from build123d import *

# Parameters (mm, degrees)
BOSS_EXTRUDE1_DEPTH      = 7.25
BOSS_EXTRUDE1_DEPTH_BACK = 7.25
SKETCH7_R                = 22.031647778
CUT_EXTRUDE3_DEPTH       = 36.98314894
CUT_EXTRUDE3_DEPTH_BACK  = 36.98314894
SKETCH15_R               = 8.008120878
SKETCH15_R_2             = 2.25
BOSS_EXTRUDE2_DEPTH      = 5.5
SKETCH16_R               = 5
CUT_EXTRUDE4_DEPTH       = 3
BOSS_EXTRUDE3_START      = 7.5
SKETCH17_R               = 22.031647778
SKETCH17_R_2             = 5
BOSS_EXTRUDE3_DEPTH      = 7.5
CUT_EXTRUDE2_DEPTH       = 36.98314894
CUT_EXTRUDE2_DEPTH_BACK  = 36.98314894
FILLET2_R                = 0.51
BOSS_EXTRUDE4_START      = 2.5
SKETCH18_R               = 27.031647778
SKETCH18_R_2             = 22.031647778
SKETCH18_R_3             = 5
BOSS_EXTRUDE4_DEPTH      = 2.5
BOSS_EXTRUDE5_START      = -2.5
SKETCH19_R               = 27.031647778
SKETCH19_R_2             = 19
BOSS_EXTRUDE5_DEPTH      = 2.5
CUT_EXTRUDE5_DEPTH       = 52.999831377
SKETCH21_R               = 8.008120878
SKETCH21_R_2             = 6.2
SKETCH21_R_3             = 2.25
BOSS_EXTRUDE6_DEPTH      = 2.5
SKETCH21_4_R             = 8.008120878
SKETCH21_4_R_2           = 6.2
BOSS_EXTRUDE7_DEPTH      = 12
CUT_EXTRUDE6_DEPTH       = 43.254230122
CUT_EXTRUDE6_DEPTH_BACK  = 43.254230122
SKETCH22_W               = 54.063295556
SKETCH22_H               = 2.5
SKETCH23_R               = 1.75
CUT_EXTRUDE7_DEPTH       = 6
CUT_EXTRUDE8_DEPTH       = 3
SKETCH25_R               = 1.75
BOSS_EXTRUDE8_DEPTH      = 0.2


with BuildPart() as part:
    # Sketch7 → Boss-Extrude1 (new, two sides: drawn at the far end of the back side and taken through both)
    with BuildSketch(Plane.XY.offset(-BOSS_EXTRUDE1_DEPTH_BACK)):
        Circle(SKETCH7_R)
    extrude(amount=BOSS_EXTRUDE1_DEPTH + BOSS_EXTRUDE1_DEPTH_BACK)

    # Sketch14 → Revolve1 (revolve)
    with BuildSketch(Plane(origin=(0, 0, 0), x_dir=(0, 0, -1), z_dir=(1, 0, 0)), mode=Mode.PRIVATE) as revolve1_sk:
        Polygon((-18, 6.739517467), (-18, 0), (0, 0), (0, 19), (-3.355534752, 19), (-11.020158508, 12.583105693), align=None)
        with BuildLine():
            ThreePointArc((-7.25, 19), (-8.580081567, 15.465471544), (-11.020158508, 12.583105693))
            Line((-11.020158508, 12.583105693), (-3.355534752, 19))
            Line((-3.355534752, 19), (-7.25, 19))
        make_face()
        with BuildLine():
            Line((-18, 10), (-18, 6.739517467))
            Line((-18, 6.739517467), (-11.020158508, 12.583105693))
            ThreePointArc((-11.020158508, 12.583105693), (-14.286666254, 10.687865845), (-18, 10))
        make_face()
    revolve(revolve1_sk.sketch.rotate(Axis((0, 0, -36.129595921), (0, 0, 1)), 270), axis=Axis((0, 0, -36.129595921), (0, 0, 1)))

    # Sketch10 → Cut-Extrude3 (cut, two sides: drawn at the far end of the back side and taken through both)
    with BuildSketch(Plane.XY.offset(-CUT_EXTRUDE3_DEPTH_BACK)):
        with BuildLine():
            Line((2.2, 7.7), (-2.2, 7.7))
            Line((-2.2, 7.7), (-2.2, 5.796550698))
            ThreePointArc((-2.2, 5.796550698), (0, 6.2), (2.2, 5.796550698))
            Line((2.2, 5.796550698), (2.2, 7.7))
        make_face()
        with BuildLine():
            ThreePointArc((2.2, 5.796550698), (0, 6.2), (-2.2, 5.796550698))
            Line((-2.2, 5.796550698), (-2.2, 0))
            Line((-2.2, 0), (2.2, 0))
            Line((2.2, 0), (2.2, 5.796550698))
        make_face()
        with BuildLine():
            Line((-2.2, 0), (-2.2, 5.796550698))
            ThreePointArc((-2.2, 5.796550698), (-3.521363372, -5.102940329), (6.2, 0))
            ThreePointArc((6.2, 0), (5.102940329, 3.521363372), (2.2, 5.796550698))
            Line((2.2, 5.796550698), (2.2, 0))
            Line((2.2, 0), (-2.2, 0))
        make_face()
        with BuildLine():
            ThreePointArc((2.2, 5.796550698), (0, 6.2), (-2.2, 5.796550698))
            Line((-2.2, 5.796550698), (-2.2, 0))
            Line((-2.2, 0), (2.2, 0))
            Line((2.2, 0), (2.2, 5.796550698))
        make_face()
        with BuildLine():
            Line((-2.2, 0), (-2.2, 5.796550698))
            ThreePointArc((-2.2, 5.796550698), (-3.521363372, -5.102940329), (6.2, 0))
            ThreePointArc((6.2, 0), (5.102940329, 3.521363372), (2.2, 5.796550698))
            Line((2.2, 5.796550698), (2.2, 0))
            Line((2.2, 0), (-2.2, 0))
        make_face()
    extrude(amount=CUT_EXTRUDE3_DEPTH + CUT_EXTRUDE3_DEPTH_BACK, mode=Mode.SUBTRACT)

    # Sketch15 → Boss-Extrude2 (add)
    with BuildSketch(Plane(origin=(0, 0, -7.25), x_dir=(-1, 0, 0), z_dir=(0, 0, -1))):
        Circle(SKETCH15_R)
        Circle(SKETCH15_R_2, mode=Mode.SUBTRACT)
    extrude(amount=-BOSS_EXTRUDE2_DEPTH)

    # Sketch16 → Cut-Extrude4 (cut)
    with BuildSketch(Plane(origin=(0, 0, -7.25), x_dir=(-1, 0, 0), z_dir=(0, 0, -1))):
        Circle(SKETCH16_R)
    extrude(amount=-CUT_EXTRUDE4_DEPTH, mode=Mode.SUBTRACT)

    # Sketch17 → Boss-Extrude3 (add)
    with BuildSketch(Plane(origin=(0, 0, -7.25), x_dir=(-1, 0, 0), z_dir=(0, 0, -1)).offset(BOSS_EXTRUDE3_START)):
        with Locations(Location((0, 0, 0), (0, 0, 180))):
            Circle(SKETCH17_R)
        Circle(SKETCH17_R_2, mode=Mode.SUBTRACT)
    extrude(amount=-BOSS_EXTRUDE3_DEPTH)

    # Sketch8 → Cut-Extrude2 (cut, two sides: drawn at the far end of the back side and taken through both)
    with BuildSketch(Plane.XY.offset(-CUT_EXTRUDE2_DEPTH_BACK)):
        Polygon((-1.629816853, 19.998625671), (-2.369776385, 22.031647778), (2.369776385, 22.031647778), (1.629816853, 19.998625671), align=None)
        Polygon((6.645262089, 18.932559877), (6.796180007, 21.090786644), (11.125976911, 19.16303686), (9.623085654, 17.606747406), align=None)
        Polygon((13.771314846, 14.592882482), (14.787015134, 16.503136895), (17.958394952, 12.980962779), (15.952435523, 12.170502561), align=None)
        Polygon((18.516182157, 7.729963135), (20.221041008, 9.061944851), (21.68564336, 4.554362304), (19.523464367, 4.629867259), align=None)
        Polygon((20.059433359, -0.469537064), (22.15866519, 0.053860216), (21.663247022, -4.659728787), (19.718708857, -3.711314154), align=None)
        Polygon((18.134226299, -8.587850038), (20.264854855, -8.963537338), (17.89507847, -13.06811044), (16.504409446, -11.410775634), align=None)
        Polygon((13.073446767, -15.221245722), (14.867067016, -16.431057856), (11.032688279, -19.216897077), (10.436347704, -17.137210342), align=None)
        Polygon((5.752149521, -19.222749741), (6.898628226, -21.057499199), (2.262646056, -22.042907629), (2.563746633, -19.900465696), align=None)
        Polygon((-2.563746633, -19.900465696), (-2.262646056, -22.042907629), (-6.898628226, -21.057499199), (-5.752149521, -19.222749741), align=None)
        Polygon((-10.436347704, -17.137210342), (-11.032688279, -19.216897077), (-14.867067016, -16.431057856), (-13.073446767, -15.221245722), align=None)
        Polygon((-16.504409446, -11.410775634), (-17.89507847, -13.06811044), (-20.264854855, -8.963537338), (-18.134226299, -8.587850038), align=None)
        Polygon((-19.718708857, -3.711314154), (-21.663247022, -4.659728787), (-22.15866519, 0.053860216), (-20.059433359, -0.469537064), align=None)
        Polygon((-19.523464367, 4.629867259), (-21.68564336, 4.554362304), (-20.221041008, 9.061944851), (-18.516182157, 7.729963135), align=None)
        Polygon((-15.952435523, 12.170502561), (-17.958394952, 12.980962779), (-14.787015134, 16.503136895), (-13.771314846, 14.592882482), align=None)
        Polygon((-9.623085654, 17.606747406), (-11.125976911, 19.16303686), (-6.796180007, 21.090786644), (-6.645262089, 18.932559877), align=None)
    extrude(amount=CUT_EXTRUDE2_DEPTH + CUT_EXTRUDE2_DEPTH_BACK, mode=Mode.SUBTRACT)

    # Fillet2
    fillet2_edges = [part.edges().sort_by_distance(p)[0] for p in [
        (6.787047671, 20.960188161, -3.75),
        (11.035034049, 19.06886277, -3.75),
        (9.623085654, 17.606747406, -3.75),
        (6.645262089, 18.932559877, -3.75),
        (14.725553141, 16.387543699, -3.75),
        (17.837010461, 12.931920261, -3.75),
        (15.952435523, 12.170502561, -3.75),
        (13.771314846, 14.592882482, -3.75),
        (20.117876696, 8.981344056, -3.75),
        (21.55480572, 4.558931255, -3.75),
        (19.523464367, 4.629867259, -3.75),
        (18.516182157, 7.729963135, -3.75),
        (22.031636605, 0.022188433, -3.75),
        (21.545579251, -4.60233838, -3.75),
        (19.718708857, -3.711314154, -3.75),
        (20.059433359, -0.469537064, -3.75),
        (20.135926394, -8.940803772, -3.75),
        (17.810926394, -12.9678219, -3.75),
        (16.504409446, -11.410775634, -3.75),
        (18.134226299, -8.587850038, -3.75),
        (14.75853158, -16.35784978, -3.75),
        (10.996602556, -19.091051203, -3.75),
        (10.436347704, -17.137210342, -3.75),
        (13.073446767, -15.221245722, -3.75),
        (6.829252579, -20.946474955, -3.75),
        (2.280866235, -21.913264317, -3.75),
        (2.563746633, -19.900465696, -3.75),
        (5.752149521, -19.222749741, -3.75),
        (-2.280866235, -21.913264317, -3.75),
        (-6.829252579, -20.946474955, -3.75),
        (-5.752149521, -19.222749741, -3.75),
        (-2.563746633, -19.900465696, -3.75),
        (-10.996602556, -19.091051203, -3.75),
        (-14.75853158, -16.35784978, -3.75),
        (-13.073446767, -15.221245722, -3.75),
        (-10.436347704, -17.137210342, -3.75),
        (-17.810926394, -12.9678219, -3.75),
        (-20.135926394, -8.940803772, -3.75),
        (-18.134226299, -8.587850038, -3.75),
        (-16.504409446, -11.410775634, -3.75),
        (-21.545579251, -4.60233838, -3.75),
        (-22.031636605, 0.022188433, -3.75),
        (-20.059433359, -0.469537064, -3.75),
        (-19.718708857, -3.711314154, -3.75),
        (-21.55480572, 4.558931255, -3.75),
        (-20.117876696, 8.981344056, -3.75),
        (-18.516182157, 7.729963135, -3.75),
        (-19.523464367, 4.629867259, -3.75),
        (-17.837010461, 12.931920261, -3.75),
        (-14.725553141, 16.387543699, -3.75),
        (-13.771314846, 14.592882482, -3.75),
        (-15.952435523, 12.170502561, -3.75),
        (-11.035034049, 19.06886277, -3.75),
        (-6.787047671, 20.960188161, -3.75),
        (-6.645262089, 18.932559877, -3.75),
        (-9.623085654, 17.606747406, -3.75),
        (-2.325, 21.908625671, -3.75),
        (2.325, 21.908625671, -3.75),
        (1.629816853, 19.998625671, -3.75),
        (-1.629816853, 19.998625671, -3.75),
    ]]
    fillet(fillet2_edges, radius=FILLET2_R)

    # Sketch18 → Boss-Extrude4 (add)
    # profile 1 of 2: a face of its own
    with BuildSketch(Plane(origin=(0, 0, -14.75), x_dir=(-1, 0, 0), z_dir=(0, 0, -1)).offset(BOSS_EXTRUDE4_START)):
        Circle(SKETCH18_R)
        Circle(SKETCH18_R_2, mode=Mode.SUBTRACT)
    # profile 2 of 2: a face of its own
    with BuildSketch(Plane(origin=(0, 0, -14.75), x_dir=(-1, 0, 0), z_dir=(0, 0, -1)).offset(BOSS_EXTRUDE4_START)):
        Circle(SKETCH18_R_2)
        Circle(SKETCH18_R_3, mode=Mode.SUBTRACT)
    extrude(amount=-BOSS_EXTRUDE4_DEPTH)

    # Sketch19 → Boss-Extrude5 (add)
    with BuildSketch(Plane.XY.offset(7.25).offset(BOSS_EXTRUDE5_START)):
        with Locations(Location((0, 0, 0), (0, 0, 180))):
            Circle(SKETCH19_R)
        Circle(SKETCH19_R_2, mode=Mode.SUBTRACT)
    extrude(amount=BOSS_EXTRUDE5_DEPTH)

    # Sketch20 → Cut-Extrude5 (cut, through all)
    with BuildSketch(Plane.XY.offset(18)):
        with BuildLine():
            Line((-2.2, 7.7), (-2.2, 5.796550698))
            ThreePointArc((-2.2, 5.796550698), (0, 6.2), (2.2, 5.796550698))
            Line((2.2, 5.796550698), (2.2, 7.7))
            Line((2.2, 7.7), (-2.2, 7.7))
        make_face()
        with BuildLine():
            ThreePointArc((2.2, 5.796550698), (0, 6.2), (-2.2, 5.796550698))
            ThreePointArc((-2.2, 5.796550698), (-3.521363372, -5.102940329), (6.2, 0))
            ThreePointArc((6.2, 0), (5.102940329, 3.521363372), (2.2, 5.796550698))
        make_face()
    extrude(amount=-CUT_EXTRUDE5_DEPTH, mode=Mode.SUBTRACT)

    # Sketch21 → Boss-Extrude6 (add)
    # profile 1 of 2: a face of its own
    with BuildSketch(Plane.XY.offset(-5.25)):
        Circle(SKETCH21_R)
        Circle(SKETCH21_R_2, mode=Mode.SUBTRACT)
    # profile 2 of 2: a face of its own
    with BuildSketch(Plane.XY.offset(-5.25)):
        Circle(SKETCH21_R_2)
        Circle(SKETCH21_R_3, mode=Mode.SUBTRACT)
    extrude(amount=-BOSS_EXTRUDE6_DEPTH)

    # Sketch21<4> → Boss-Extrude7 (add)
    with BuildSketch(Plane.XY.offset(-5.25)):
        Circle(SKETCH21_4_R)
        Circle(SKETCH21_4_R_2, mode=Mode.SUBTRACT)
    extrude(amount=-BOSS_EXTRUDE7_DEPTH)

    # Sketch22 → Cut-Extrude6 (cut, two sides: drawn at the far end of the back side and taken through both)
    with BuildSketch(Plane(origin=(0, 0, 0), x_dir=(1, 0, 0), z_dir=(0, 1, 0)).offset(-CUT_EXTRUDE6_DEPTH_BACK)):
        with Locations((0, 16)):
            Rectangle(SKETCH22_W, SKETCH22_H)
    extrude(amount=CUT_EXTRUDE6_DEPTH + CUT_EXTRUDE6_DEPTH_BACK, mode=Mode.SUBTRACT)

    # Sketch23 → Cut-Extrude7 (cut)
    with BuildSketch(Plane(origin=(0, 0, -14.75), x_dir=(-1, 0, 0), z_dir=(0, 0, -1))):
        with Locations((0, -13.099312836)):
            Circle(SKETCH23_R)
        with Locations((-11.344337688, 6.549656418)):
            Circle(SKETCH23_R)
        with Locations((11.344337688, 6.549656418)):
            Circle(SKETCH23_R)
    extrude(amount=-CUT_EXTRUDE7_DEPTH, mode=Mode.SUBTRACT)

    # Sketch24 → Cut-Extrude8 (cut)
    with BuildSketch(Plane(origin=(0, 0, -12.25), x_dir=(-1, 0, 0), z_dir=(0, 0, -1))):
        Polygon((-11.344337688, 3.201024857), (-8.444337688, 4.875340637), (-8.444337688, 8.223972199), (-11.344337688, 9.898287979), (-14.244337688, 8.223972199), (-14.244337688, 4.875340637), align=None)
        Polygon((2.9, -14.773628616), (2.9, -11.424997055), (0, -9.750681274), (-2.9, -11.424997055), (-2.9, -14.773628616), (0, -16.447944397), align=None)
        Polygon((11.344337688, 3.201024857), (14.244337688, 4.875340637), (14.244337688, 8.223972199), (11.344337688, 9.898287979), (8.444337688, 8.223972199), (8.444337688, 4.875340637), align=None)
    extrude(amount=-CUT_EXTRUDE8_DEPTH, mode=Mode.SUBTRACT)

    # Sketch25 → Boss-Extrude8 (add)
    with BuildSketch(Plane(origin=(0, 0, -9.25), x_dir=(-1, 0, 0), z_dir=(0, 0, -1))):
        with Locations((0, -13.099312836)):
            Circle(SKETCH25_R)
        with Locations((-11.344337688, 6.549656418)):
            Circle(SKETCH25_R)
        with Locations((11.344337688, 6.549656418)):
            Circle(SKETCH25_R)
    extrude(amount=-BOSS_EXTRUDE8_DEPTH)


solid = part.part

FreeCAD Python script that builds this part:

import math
import FreeCAD as App
import Part
import Sketcher
Q = App.Units.Quantity


def edges_at(feature, points):
    """Names of the edges that pass closest to the given points."""
    edges = feature.Shape.Edges
    near = lambda p: min(range(len(edges)), key=lambda i: edges[i].distToShape(Part.Vertex(*p))[0])
    return sorted({f"Edge{near(p) + 1}" for p in points})

doc = App.newDocument("Part")
body = doc.addObject("PartDesign::Body", "Body")

# Sketch on XY plane
sketch1 = doc.addObject("Sketcher::SketchObject", "Sketch")
body.addObject(sketch1)
sketch1.AttachmentSupport = (doc.XY_Plane, [""])
sketch1.MapMode = "FlatFace"
sketch1.addGeometry(Part.Circle(App.Vector(0, 0, 0), App.Vector(0, 0, 1), 22), False)
sketch1.addConstraint(Sketcher.Constraint("Coincident", 0, 3, -1, 1))
sketch1.addConstraint(Sketcher.Constraint("Diameter", 0, 44.063296))
pad1 = doc.addObject("PartDesign::Pad", "Pad")
body.addObject(pad1)
pad1.Profile = sketch1
pad1.Type = "TwoLengths"
pad1.Length = 7.25
pad1.Length2 = 7.25

# Sketch on YZ plane
sketch2 = doc.addObject("Sketcher::SketchObject", "Sketch001")
body.addObject(sketch2)
sketch2.AttachmentSupport = (doc.YZ_Plane, [""])
sketch2.MapMode = "FlatFace"
sketch2.addGeometry(Part.LineSegment(App.Vector(0, 18, 0), App.Vector(0, 0, 0)), False)
sketch2.addGeometry(Part.LineSegment(App.Vector(0, 0, 0), App.Vector(19, 0, 0)), False)
sketch2.addGeometry(Part.LineSegment(App.Vector(19, 0, 0), App.Vector(19, 7, 0)), False)
sketch2.addGeometry(Part.ArcOfCircle(Part.Circle(App.Vector(21, 18, 0), App.Vector(0, 0, 1), 11), math.radians(-140), math.radians(-101)), False)
sketch2.addGeometry(Part.ArcOfCircle(Part.Circle(App.Vector(21, 18, 0), App.Vector(0, 0, 1), 11), math.radians(-179), math.radians(-140)), False)
sketch2.addGeometry(Part.LineSegment(App.Vector(10, 18, 0), App.Vector(0, 18, 0)), False)
sketch2.addConstraint(Sketcher.Constraint("Coincident", 0, 2, 1, 1))
sketch2.addConstraint(Sketcher.Constraint("Coincident", 1, 2, 2, 1))
sketch2.addConstraint(Sketcher.Constraint("Coincident", 2, 2, 3, 2))
sketch2.addConstraint(Sketcher.Constraint("Tangent", 3, 1, 4, 2))
sketch2.addConstraint(Sketcher.Constraint("Coincident", 4, 1, 5, 1))
sketch2.addConstraint(Sketcher.Constraint("Coincident", 5, 2, 0, 1))
sketch2.addConstraint(Sketcher.Constraint("Vertical", 0))
sketch2.addConstraint(Sketcher.Constraint("Horizontal", 1))
sketch2.addConstraint(Sketcher.Constraint("Vertical", 2))
sketch2.addConstraint(Sketcher.Constraint("Horizontal", 5))
sketch2.addConstraint(Sketcher.Constraint("Coincident", 0, 2, -1, 1))
sketch2.addConstraint(Sketcher.Constraint("Equal", 3, 4))
sketch2.addConstraint(Sketcher.Constraint("DistanceX", 1, 1, 1, 2, 19.0))
sketch2.addConstraint(Sketcher.Constraint("DistanceX", 5, 2, 5, 1, 10.0))
sketch2.addConstraint(Sketcher.Constraint("DistanceY", 0, 2, 0, 1, 18.0))
sketch2.addConstraint(Sketcher.Constraint("DistanceY", 2, 1, 2, 2, 7.25))
sketch2.addConstraint(Sketcher.Constraint("Radius", 3, 11.078125))
sketch2.addConstraint(Sketcher.Constraint("DistanceY", -1, 1, 3, 1, 11.020159))
revolution = doc.addObject("PartDesign::Revolution", "Revolution")
body.addObject(revolution)
revolution.Profile = sketch2
revolution.ReferenceAxis = (sketch2, ["V_Axis"])
revolution.Angle = 360

# Sketch on XY plane
sketch3 = doc.addObject("Sketcher::SketchObject", "Sketch002")
body.addObject(sketch3)
sketch3.AttachmentSupport = (doc.XY_Plane, [""])
sketch3.MapMode = "FlatFace"
sketch3.addGeometry(Part.LineSegment(App.Vector(-2.2, 7.7, 0), App.Vector(-2.2, 5.8, 0)), False)
sketch3.addGeometry(Part.ArcOfCircle(Part.Circle(App.Vector(0, 0, 0), App.Vector(0, 0, 1), 6.2), math.radians(111), math.radians(360)), False)
sketch3.addGeometry(Part.ArcOfCircle(Part.Circle(App.Vector(0, 0, 0), App.Vector(0, 0, 1), 6.2), math.radians(0), math.radians(69)), False)
sketch3.addGeometry(Part.LineSegment(App.Vector(2.2, 5.8, 0), App.Vector(2.2, 7.7, 0)), False)
sketch3.addGeometry(Part.LineSegment(App.Vector(2.2, 7.7, 0), App.Vector(-2.2, 7.7, 0)), False)
sketch3.addConstraint(Sketcher.Constraint("Coincident", 0, 2, 1, 1))
sketch3.addConstraint(Sketcher.Constraint("Tangent", 1, 2, 2, 1))
sketch3.addConstraint(Sketcher.Constraint("Coincident", 2, 2, 3, 1))
sketch3.addConstraint(Sketcher.Constraint("Coincident", 3, 2, 4, 1))
sketch3.addConstraint(Sketcher.Constraint("Coincident", 4, 2, 0, 1))
sketch3.addConstraint(Sketcher.Constraint("Vertical", 0))
sketch3.addConstraint(Sketcher.Constraint("Vertical", 3))
sketch3.addConstraint(Sketcher.Constraint("Horizontal", 4))
sketch3.addConstraint(Sketcher.Constraint("Coincident", 1, 3, -1, 1))
sketch3.addConstraint(Sketcher.Constraint("Equal", 1, 2))
sketch3.addConstraint(Sketcher.Constraint("PointOnObject", 1, 2, -1))
sketch3.addConstraint(Sketcher.Constraint("Horizontal", 0, 2, 2, 2))
sketch3.addConstraint(Sketcher.Constraint("Radius", 1, 6.2))
sketch3.addConstraint(Sketcher.Constraint("DistanceX", 4, 2, 4, 1, 4.4))
sketch3.addConstraint(Sketcher.Constraint("DistanceY", -1, 1, 3, 2, 7.7))
pocket1 = doc.addObject("PartDesign::Pocket", "Pocket")
body.addObject(pocket1)
pocket1.Profile = sketch3
pocket1.Type = "ThroughAll"
pocket1.Midplane = True

# Sketch on XY plane
sketch4 = doc.addObject("Sketcher::SketchObject", "Sketch003")
body.addObject(sketch4)
sketch4.AttachmentSupport = (doc.XY_Plane, [""])
sketch4.MapMode = "FlatFace"
sketch4.AttachmentOffset = App.Placement(App.Vector(0, 0, -7.25), App.Rotation())
sketch4.addGeometry(Part.Circle(App.Vector(0, 0, 0), App.Vector(0, 0, 1), 8), False)
sketch4.addGeometry(Part.Circle(App.Vector(0, 0, 0), App.Vector(0, 0, 1), 2.2), False)
sketch4.addConstraint(Sketcher.Constraint("Coincident", 0, 3, -1, 1))
sketch4.addConstraint(Sketcher.Constraint("Coincident", 1, 3, -1, 1))
sketch4.addConstraint(Sketcher.Constraint("Diameter", 1, 4.5))
sketch4.addConstraint(Sketcher.Constraint("Diameter", 0, 16.016242))
pad2 = doc.addObject("PartDesign::Pad", "Pad001")
body.addObject(pad2)
pad2.Profile = sketch4
pad2.Length = 5.5

# Sketch on XY plane
sketch5 = doc.addObject("Sketcher::SketchObject", "Sketch004")
body.addObject(sketch5)
sketch5.AttachmentSupport = (doc.XY_Plane, [""])
sketch5.MapMode = "FlatFace"
sketch5.AttachmentOffset = App.Placement(App.Vector(0, 0, -7.25), App.Rotation())
sketch5.addGeometry(Part.Circle(App.Vector(0, 0, 0), App.Vector(0, 0, 1), 5), False)
sketch5.addConstraint(Sketcher.Constraint("Coincident", 0, 3, -1, 1))
sketch5.addConstraint(Sketcher.Constraint("Diameter", 0, 10.0))
pocket2 = doc.addObject("PartDesign::Pocket", "Pocket001")
body.addObject(pocket2)
pocket2.Profile = sketch5
pocket2.Length = 3
pocket2.Reversed = True

# Sketch on XY plane
sketch6 = doc.addObject("Sketcher::SketchObject", "Sketch005")
body.addObject(sketch6)
sketch6.AttachmentSupport = (doc.XY_Plane, [""])
sketch6.MapMode = "FlatFace"
sketch6.AttachmentOffset = App.Placement(App.Vector(0, 0, -14.75), App.Rotation())
sketch6.addGeometry(Part.Circle(App.Vector(0, 0, 0), App.Vector(0, 0, 1), 22), False)
sketch6.addGeometry(Part.Circle(App.Vector(0, 0, 0), App.Vector(0, 0, 1), 5), False)
sketch6.addConstraint(Sketcher.Constraint("Coincident", 0, 3, -1, 1))
sketch6.addConstraint(Sketcher.Constraint("Coincident", 1, 3, -1, 1))
sketch6.addConstraint(Sketcher.Constraint("Diameter", 1, 10.0))
sketch6.addConstraint(Sketcher.Constraint("Diameter", 0, 44.063296))
pad3 = doc.addObject("PartDesign::Pad", "Pad002")
body.addObject(pad3)
pad3.Profile = sketch6
pad3.Length = 7.5

# Sketch on XY plane
sketch7 = doc.addObject("Sketcher::SketchObject", "Sketch006")
body.addObject(sketch7)
sketch7.AttachmentSupport = (doc.XY_Plane, [""])
sketch7.MapMode = "FlatFace"
sketch7.addGeometry(Part.LineSegment(App.Vector(-2.4, 22, 0), App.Vector(-1.6, 20, 0)), False)
sketch7.addGeometry(Part.LineSegment(App.Vector(-1.6, 20, 0), App.Vector(1.6, 20, 0)), False)
sketch7.addGeometry(Part.LineSegment(App.Vector(1.6, 20, 0), App.Vector(2.4, 22, 0)), False)
sketch7.addGeometry(Part.LineSegment(App.Vector(2.4, 22, 0), App.Vector(-2.4, 22, 0)), False)
sketch7.addGeometry(Part.LineSegment(App.Vector(6.8, 21.1, 0), App.Vector(6.6, 18.9, 0)), False)
sketch7.addGeometry(Part.LineSegment(App.Vector(6.6, 18.9, 0), App.Vector(9.6, 17.6, 0)), False)
sketch7.addGeometry(Part.LineSegment(App.Vector(9.6, 17.6, 0), App.Vector(11.1, 19.2, 0)), False)
sketch7.addGeometry(Part.LineSegment(App.Vector(11.1, 19.2, 0), App.Vector(6.8, 21.1, 0)), False)
sketch7.addGeometry(Part.LineSegment(App.Vector(14.8, 16.5, 0), App.Vector(13.8, 14.6, 0)), False)
sketch7.addGeometry(Part.LineSegment(App.Vector(13.8, 14.6, 0), App.Vector(16, 12.2, 0)), False)
sketch7.addGeometry(Part.LineSegment(App.Vector(16, 12.2, 0), App.Vector(18, 13, 0)), False)
sketch7.addGeometry(Part.LineSegment(App.Vector(18, 13, 0), App.Vector(14.8, 16.5, 0)), False)
sketch7.addGeometry(Part.LineSegment(App.Vector(20.2, 9.1, 0), App.Vector(18.5, 7.7, 0)), False)
sketch7.addGeometry(Part.LineSegment(App.Vector(18.5, 7.7, 0), App.Vector(19.5, 4.6, 0)), False)
sketch7.addGeometry(Part.LineSegment(App.Vector(19.5, 4.6, 0), App.Vector(21.7, 4.6, 0)), False)
sketch7.addGeometry(Part.LineSegment(App.Vector(21.7, 4.6, 0), App.Vector(20.2, 9.1, 0)), False)
sketch7.addGeometry(Part.LineSegment(App.Vector(22.2, 0.1, 0), App.Vector(20.1, -0.5, 0)), False)
sketch7.addGeometry(Part.LineSegment(App.Vector(20.1, -0.5, 0), App.Vector(19.7, -3.7, 0)), False)
sketch7.addGeometry(Part.LineSegment(App.Vector(19.7, -3.7, 0), App.Vector(21.7, -4.7, 0)), False)
sketch7.addGeometry(Part.LineSegment(App.Vector(21.7, -4.7, 0), App.Vector(22.2, 0.1, 0)), False)
sketch7.addGeometry(Part.LineSegment(App.Vector(20.3, -9, 0), App.Vector(18.1, -8.6, 0)), False)
sketch7.addGeometry(Part.LineSegment(App.Vector(18.1, -8.6, 0), App.Vector(16.5, -11.4, 0)), False)
sketch7.addGeometry(Part.LineSegment(App.Vector(16.5, -11.4, 0), App.Vector(17.9, -13.1, 0)), False)
sketch7.addGeometry(Part.LineSegment(App.Vector(17.9, -13.1, 0), App.Vector(20.3, -9, 0)), False)
sketch7.addGeometry(Part.LineSegment(App.Vector(14.9, -16.4, 0), App.Vector(13.1, -15.2, 0)), False)
sketch7.addGeometry(Part.LineSegment(App.Vector(13.1, -15.2, 0), App.Vector(10.4, -17.1, 0)), False)
sketch7.addGeometry(Part.LineSegment(App.Vector(10.4, -17.1, 0), App.Vector(11, -19.2, 0)), False)
sketch7.addGeometry(Part.LineSegment(App.Vector(11, -19.2, 0), App.Vector(14.9, -16.4, 0)), False)
sketch7.addGeometry(Part.LineSegment(App.Vector(6.9, -21.1, 0), App.Vector(5.8, -19.2, 0)), False)
sketch7.addGeometry(Part.LineSegment(App.Vector(5.8, -19.2, 0), App.Vector(2.6, -19.9, 0)), False)
sketch7.addGeometry(Part.LineSegment(App.Vector(2.6, -19.9, 0), App.Vector(2.3, -22, 0)), False)
sketch7.addGeometry(Part.LineSegment(App.Vector(2.3, -22, 0), App.Vector(6.9, -21.1, 0)), False)
sketch7.addGeometry(Part.LineSegment(App.Vector(-2.3, -22, 0), App.Vector(-2.6, -19.9, 0)), False)
sketch7.addGeometry(Part.LineSegment(App.Vector(-2.6, -19.9, 0), App.Vector(-5.8, -19.2, 0)), False)
sketch7.addGeometry(Part.LineSegment(App.Vector(-5.8, -19.2, 0), App.Vector(-6.9, -21.1, 0)), False)
sketch7.addGeometry(Part.LineSegment(App.Vector(-6.9, -21.1, 0), App.Vector(-2.3, -22, 0)), False)
sketch7.addGeometry(Part.LineSegment(App.Vector(-11, -19.2, 0), App.Vector(-10.4, -17.1, 0)), False)
sketch7.addGeometry(Part.LineSegment(App.Vector(-10.4, -17.1, 0), App.Vector(-13.1, -15.2, 0)), False)
sketch7.addGeometry(Part.LineSegment(App.Vector(-13.1, -15.2, 0), App.Vector(-14.9, -16.4, 0)), False)
sketch7.addGeometry(Part.LineSegment(App.Vector(-14.9, -16.4, 0), App.Vector(-11, -19.2, 0)), False)
sketch7.addGeometry(Part.LineSegment(App.Vector(-17.9, -13.1, 0), App.Vector(-16.5, -11.4, 0)), False)
sketch7.addGeometry(Part.LineSegment(App.Vector(-16.5, -11.4, 0), App.Vector(-18.1, -8.6, 0)), False)
sketch7.addGeometry(Part.LineSegment(App.Vector(-18.1, -8.6, 0), App.Vector(-20.3, -9, 0)), False)
sketch7.addGeometry(Part.LineSegment(App.Vector(-20.3, -9, 0), App.Vector(-17.9, -13.1, 0)), False)
sketch7.addGeometry(Part.LineSegment(App.Vector(-21.7, -4.7, 0), App.Vector(-19.7, -3.7, 0)), False)
sketch7.addGeometry(Part.LineSegment(App.Vector(-19.7, -3.7, 0), App.Vector(-20.1, -0.5, 0)), False)
sketch7.addGeometry(Part.LineSegment(App.Vector(-20.1, -0.5, 0), App.Vector(-22.2, 0.1, 0)), False)
sketch7.addGeometry(Part.LineSegment(App.Vector(-22.2, 0.1, 0), App.Vector(-21.7, -4.7, 0)), False)
sketch7.addGeometry(Part.LineSegment(App.Vector(-21.7, 4.6, 0), App.Vector(-19.5, 4.6, 0)), False)
sketch7.addGeometry(Part.LineSegment(App.Vector(-19.5, 4.6, 0), App.Vector(-18.5, 7.7, 0)), False)
sketch7.addGeometry(Part.LineSegment(App.Vector(-18.5, 7.7, 0), App.Vector(-20.2, 9.1, 0)), False)
sketch7.addGeometry(Part.LineSegment(App.Vector(-20.2, 9.1, 0), App.Vector(-21.7, 4.6, 0)), False)
sketch7.addGeometry(Part.LineSegment(App.Vector(-18, 13, 0), App.Vector(-16, 12.2, 0)), False)
sketch7.addGeometry(Part.LineSegment(App.Vector(-16, 12.2, 0), App.Vector(-13.8, 14.6, 0)), False)
sketch7.addGeometry(Part.LineSegment(App.Vector(-13.8, 14.6, 0), App.Vector(-14.8, 16.5, 0)), False)
sketch7.addGeometry(Part.LineSegment(App.Vector(-14.8, 16.5, 0), App.Vector(-18, 13, 0)), False)
sketch7.addGeometry(Part.LineSegment(App.Vector(-11.1, 19.2, 0), App.Vector(-9.6, 17.6, 0)), False)
sketch7.addGeometry(Part.LineSegment(App.Vector(-9.6, 17.6, 0), App.Vector(-6.6, 18.9, 0)), False)
sketch7.addGeometry(Part.LineSegment(App.Vector(-6.6, 18.9, 0), App.Vector(-6.8, 21.1, 0)), False)
sketch7.addGeometry(Part.LineSegment(App.Vector(-6.8, 21.1, 0), App.Vector(-11.1, 19.2, 0)), False)
sketch7.addConstraint(Sketcher.Constraint("Coincident", 0, 2, 1, 1))
sketch7.addConstraint(Sketcher.Constraint("Coincident", 1, 2, 2, 1))
sketch7.addConstraint(Sketcher.Constraint("Coincident", 2, 2, 3, 1))
sketch7.addConstraint(Sketcher.Constraint("Coincident", 3, 2, 0, 1))
sketch7.addConstraint(Sketcher.Constraint("Coincident", 4, 2, 5, 1))
sketch7.addConstraint(Sketcher.Constraint("Coincident", 5, 2, 6, 1))
sketch7.addConstraint(Sketcher.Constraint("Coincident", 6, 2, 7, 1))
sketch7.addConstraint(Sketcher.Constraint("Coincident", 7, 2, 4, 1))
sketch7.addConstraint(Sketcher.Constraint("Coincident", 8, 2, 9, 1))
sketch7.addConstraint(Sketcher.Constraint("Coincident", 9, 2, 10, 1))
sketch7.addConstraint(Sketcher.Constraint("Coincident", 10, 2, 11, 1))
sketch7.addConstraint(Sketcher.Constraint("Coincident", 11, 2, 8, 1))
sketch7.addConstraint(Sketcher.Constraint("Coincident", 12, 2, 13, 1))
sketch7.addConstraint(Sketcher.Constraint("Coincident", 13, 2, 14, 1))
sketch7.addConstraint(Sketcher.Constraint("Coincident", 14, 2, 15, 1))
sketch7.addConstraint(Sketcher.Constraint("Coincident", 15, 2, 12, 1))
sketch7.addConstraint(Sketcher.Constraint("Coincident", 16, 2, 17, 1))
sketch7.addConstraint(Sketcher.Constraint("Coincident", 17, 2, 18, 1))
sketch7.addConstraint(Sketcher.Constraint("Coincident", 18, 2, 19, 1))
sketch7.addConstraint(Sketcher.Constraint("Coincident", 19, 2, 16, 1))
sketch7.addConstraint(Sketcher.Constraint("Coincident", 20, 2, 21, 1))
sketch7.addConstraint(Sketcher.Constraint("Coincident", 21, 2, 22, 1))
sketch7.addConstraint(Sketcher.Constraint("Coincident", 22, 2, 23, 1))
sketch7.addConstraint(Sketcher.Constraint("Coincident", 23, 2, 20, 1))
sketch7.addConstraint(Sketcher.Constraint("Coincident", 24, 2, 25, 1))
sketch7.addConstraint(Sketcher.Constraint("Coincident", 25, 2, 26, 1))
sketch7.addConstraint(Sketcher.Constraint("Coincident", 26, 2, 27, 1))
sketch7.addConstraint(Sketcher.Constraint("Coincident", 27, 2, 24, 1))
sketch7.addConstraint(Sketcher.Constraint("Coincident", 28, 2, 29, 1))
sketch7.addConstraint(Sketcher.Constraint("Coincident", 29, 2, 30, 1))
sketch7.addConstraint(Sketcher.Constraint("Coincident", 30, 2, 31, 1))
sketch7.addConstraint(Sketcher.Constraint("Coincident", 31, 2, 28, 1))
sketch7.addConstraint(Sketcher.Constraint("Coincident", 32, 2, 33, 1))
sketch7.addConstraint(Sketcher.Constraint("Coincident", 33, 2, 34, 1))
sketch7.addConstraint(Sketcher.Constraint("Coincident", 34, 2, 35, 1))
sketch7.addConstraint(Sketcher.Constraint("Coincident", 35, 2, 32, 1))
sketch7.addConstraint(Sketcher.Constraint("Coincident", 36, 2, 37, 1))
sketch7.addConstraint(Sketcher.Constraint("Coincident", 37, 2, 38, 1))
sketch7.addConstraint(Sketcher.Constraint("Coincident", 38, 2, 39, 1))
sketch7.addConstraint(Sketcher.Constraint("Coincident", 39, 2, 36, 1))
sketch7.addConstraint(Sketcher.Constraint("Coincident", 40, 2, 41, 1))
sketch7.addConstraint(Sketcher.Constraint("Coincident", 41, 2, 42, 1))
sketch7.addConstraint(Sketcher.Constraint("Coincident", 42, 2, 43, 1))
sketch7.addConstraint(Sketcher.Constraint("Coincident", 43, 2, 40, 1))
sketch7.addConstraint(Sketcher.Constraint("Coincident", 44, 2, 45, 1))
sketch7.addConstraint(Sketcher.Constraint("Coincident", 45, 2, 46, 1))
sketch7.addConstraint(Sketcher.Constraint("Coincident", 46, 2, 47, 1))
sketch7.addConstraint(Sketcher.Constraint("Coincident", 47, 2, 44, 1))
sketch7.addConstraint(Sketcher.Constraint("Coincident", 48, 2, 49, 1))
sketch7.addConstraint(Sketcher.Constraint("Coincident", 49, 2, 50, 1))
sketch7.addConstraint(Sketcher.Constraint("Coincident", 50, 2, 51, 1))
sketch7.addConstraint(Sketcher.Constraint("Coincident", 51, 2, 48, 1))
sketch7.addConstraint(Sketcher.Constraint("Coincident", 52, 2, 53, 1))
sketch7.addConstraint(Sketcher.Constraint("Coincident", 53, 2, 54, 1))
sketch7.addConstraint(Sketcher.Constraint("Coincident", 54, 2, 55, 1))
sketch7.addConstraint(Sketcher.Constraint("Coincident", 55, 2, 52, 1))
sketch7.addConstraint(Sketcher.Constraint("Coincident", 56, 2, 57, 1))
sketch7.addConstraint(Sketcher.Constraint("Coincident", 57, 2, 58, 1))
sketch7.addConstraint(Sketcher.Constraint("Coincident", 58, 2, 59, 1))
sketch7.addConstraint(Sketcher.Constraint("Coincident", 59, 2, 56, 1))
sketch7.addConstraint(Sketcher.Constraint("Horizontal", 1))
sketch7.addConstraint(Sketcher.Constraint("Horizontal", 3))
sketch7.addConstraint(Sketcher.Constraint("Symmetric", 29, 2, 32, 2, -2))
sketch7.addConstraint(Sketcher.Constraint("Symmetric", 28, 2, 33, 2, -2))
sketch7.addConstraint(Sketcher.Constraint("Symmetric", 31, 2, 34, 2, -2))
sketch7.addConstraint(Sketcher.Constraint("Symmetric", 30, 2, 35, 2, -2))
sketch7.addConstraint(Sketcher.Constraint("Symmetric", 25, 2, 36, 2, -2))
sketch7.addConstraint(Sketcher.Constraint("Symmetric", 24, 2, 37, 2, -2))
sketch7.addConstraint(Sketcher.Constraint("Symmetric", 27, 2, 38, 2, -2))
sketch7.addConstraint(Sketcher.Constraint("Symmetric", 26, 2, 39, 2, -2))
sketch7.addConstraint(Sketcher.Constraint("Symmetric", 21, 2, 40, 2, -2))
sketch7.addConstraint(Sketcher.Constraint("Symmetric", 20, 2, 41, 2, -2))
sketch7.addConstraint(Sketcher.Constraint("Symmetric", 23, 2, 42, 2, -2))
sketch7.addConstraint(Sketcher.Constraint("Symmetric", 22, 2, 43, 2, -2))
sketch7.addConstraint(Sketcher.Constraint("Symmetric", 17, 2, 44, 2, -2))
sketch7.addConstraint(Sketcher.Constraint("Symmetric", 16, 2, 45, 2, -2))
sketch7.addConstraint(Sketcher.Constraint("Symmetric", 19, 2, 46, 2, -2))
sketch7.addConstraint(Sketcher.Constraint("Symmetric", 18, 2, 47, 2, -2))
sketch7.addConstraint(Sketcher.Constraint("Symmetric", 13, 2, 48, 2, -2))
sketch7.addConstraint(Sketcher.Constraint("Symmetric", 12, 2, 49, 2, -2))
sketch7.addConstraint(Sketcher.Constraint("Symmetric", 15, 2, 50, 2, -2))
sketch7.addConstraint(Sketcher.Constraint("Symmetric", 14, 2, 51, 2, -2))
sketch7.addConstraint(Sketcher.Constraint("Symmetric", 9, 2, 52, 2, -2))
sketch7.addConstraint(Sketcher.Constraint("Symmetric", 8, 2, 53, 2, -2))
sketch7.addConstraint(Sketcher.Constraint("Symmetric", 11, 2, 54, 2, -2))
sketch7.addConstraint(Sketcher.Constraint("Symmetric", 10, 2, 55, 2, -2))
sketch7.addConstraint(Sketcher.Constraint("Symmetric", 5, 2, 56, 2, -2))
sketch7.addConstraint(Sketcher.Constraint("Symmetric", 4, 2, 57, 2, -2))
sketch7.addConstraint(Sketcher.Constraint("Symmetric", 7, 2, 58, 2, -2))
sketch7.addConstraint(Sketcher.Constraint("Symmetric", 6, 2, 59, 2, -2))
sketch7.addConstraint(Sketcher.Constraint("Parallel", 5, 7))
sketch7.addConstraint(Sketcher.Constraint("Parallel", 9, 11))
sketch7.addConstraint(Sketcher.Constraint("Parallel", 13, 15))
sketch7.addConstraint(Sketcher.Constraint("Parallel", 17, 19))
sketch7.addConstraint(Sketcher.Constraint("Parallel", 21, 23))
sketch7.addConstraint(Sketcher.Constraint("Parallel", 25, 27))
sketch7.addConstraint(Sketcher.Constraint("Parallel", 29, 31))
sketch7.addConstraint(Sketcher.Constraint("Equal", 0, 2))
sketch7.addConstraint(Sketcher.Constraint("Equal", 2, 4))
sketch7.addConstraint(Sketcher.Constraint("Equal", 4, 6))
sketch7.addConstraint(Sketcher.Constraint("Equal", 6, 8))
sketch7.addConstraint(Sketcher.Constraint("Equal", 5, 9))
sketch7.addConstraint(Sketcher.Constraint("Equal", 8, 10))
sketch7.addConstraint(Sketcher.Constraint("Equal", 7, 11))
sketch7.addConstraint(Sketcher.Constraint("Equal", 10, 12))
sketch7.addConstraint(Sketcher.Constraint("Equal", 9, 13))
sketch7.addConstraint(Sketcher.Constraint("Equal", 12, 14))
sketch7.addConstraint(Sketcher.Constraint("Equal", 11, 15))
sketch7.addConstraint(Sketcher.Constraint("Equal", 14, 16))
sketch7.addConstraint(Sketcher.Constraint("Equal", 13, 17))
sketch7.addConstraint(Sketcher.Constraint("Equal", 16, 18))
sketch7.addConstraint(Sketcher.Constraint("Equal", 15, 19))
sketch7.addConstraint(Sketcher.Constraint("Equal", 18, 20))
sketch7.addConstraint(Sketcher.Constraint("Equal", 17, 21))
sketch7.addConstraint(Sketcher.Constraint("Equal", 20, 22))
sketch7.addConstraint(Sketcher.Constraint("Equal", 19, 23))
sketch7.addConstraint(Sketcher.Constraint("Equal", 22, 24))
sketch7.addConstraint(Sketcher.Constraint("Equal", 21, 25))
sketch7.addConstraint(Sketcher.Constraint("Equal", 24, 26))
sketch7.addConstraint(Sketcher.Constraint("Equal", 23, 27))
sketch7.addConstraint(Sketcher.Constraint("Equal", 26, 28))
sketch7.addConstraint(Sketcher.Constraint("Equal", 25, 29))
sketch7.addConstraint(Sketcher.Constraint("Equal", 28, 30))
sketch7.addConstraint(Sketcher.Constraint("Equal", 27, 31))
sketch7.addConstraint(Sketcher.Constraint("Angle", 0, Q("-70 deg")))
sketch7.addConstraint(Sketcher.Constraint("Angle", 4, Q("-94 deg")))
sketch7.addConstraint(Sketcher.Constraint("Angle", 5, Q("-24 deg")))
sketch7.addConstraint(Sketcher.Constraint("Angle", 8, Q("-118 deg")))
sketch7.addConstraint(Sketcher.Constraint("Angle", 12, Q("-142 deg")))
sketch7.addConstraint(Sketcher.Constraint("Angle", 16, Q("-166 deg")))
sketch7.addConstraint(Sketcher.Constraint("Angle", 20, Q("170 deg")))
sketch7.addConstraint(Sketcher.Constraint("Angle", 24, Q("146 deg")))
sketch7.addConstraint(Sketcher.Constraint("Angle", 28, Q("122 deg")))
sketch7.addConstraint(Sketcher.Constraint("DistanceY", 12, 2, 10, 2, 5.251))
sketch7.addConstraint(Sketcher.Constraint("DistanceY", 42, 2, 45, 2, 8.494))
sketch7.addConstraint(Sketcher.Constraint("DistanceY", 31, 2, -1, 1, 21.057499))
sketch7.addConstraint(Sketcher.Constraint("DistanceY", 5, 2, 2, 2, 4.4249))
sketch7.addConstraint(Sketcher.Constraint("DistanceX", 2, 2, 6, 2, 8.756201))
sketch7.addConstraint(Sketcher.Constraint("DistanceX", 8, 2, 11, 2, 1.0157))
sketch7.addConstraint(Sketcher.Constraint("DistanceY", 11, 2, 6, 2, 2.6599))
sketch7.addConstraint(Sketcher.Constraint("DistanceY", 14, 2, 12, 2, 3.175601))
sketch7.addConstraint(Sketcher.Constraint("DistanceY", 16, 2, 14, 2, 5.023899))
sketch7.addConstraint(Sketcher.Constraint("DistanceX", 13, 2, 19, 2, 2.635201))
sketch7.addConstraint(Sketcher.Constraint("DistanceX", 21, 2, 17, 2, 3.214299))
sketch7.addConstraint(Sketcher.Constraint("DistanceY", 25, 2, 22, 2, 4.0691))
sketch7.addConstraint(Sketcher.Constraint("DistanceX", 28, 2, 25, 2, 4.684198))
sketch7.addConstraint(Sketcher.Constraint("DistanceX", 33, 2, 28, 2, 11.504299))
sketch7.addConstraint(Sketcher.Constraint("DistanceX", 1, 1, 1, 2, 3.259634))
sketch7.addConstraint(Sketcher.Constraint("DistanceY", -1, 1, 4, 2, 18.93256))
sketch7.addConstraint(Sketcher.Constraint("DistanceX", -1, 1, 7, 2, 6.79618))
sketch7.addConstraint(Sketcher.Constraint("DistanceX", -1, 1, 15, 2, 20.221041))
sketch7.addConstraint(Sketcher.Constraint("DistanceX", 5, 2, 8, 2, 4.148229))
pocket3 = doc.addObject("PartDesign::Pocket", "Pocket002")
body.addObject(pocket3)
pocket3.Profile = sketch7
pocket3.Type = "ThroughAll"
pocket3.Midplane = True
doc.recompute()

fillet = doc.addObject("PartDesign::Fillet", "Fillet")
body.addObject(fillet)
fillet.Base = (pocket3, edges_at(pocket3, [
    (6.787, 20.96, -3.75),
    (11.035, 19.069, -3.75),
    (9.623, 17.607, -3.75),
    (6.645, 18.933, -3.75),
    (14.726, 16.388, -3.75),
    (17.837, 12.932, -3.75),
    (15.952, 12.171, -3.75),
    (13.771, 14.593, -3.75),
    (20.118, 8.981, -3.75),
    (21.555, 4.559, -3.75),
    (19.523, 4.63, -3.75),
    (18.516, 7.73, -3.75),
    (22.032, 0.022, -3.75),
    (21.546, -4.602, -3.75),
    (19.719, -3.711, -3.75),
    (20.059, -0.47, -3.75),
    (20.136, -8.941, -3.75),
    (17.811, -12.968, -3.75),
    (16.504, -11.411, -3.75),
    (18.134, -8.588, -3.75),
    (14.759, -16.358, -3.75),
    (10.997, -19.091, -3.75),
    (10.436, -17.137, -3.75),
    (13.073, -15.221, -3.75),
    (6.829, -20.946, -3.75),
    (2.281, -21.913, -3.75),
    (2.564, -19.9, -3.75),
    (5.752, -19.223, -3.75),
    (-2.281, -21.913, -3.75),
    (-6.829, -20.946, -3.75),
    (-5.752, -19.223, -3.75),
    (-2.564, -19.9, -3.75),
    (-10.997, -19.091, -3.75),
    (-14.759, -16.358, -3.75),
    (-13.073, -15.221, -3.75),
    (-10.436, -17.137, -3.75),
    (-17.811, -12.968, -3.75),
    (-20.136, -8.941, -3.75),
    (-18.134, -8.588, -3.75),
    (-16.504, -11.411, -3.75),
    (-21.546, -4.602, -3.75),
    (-22.032, 0.022, -3.75),
    (-20.059, -0.47, -3.75),
    (-19.719, -3.711, -3.75),
    (-21.555, 4.559, -3.75),
    (-20.118, 8.981, -3.75),
    (-18.516, 7.73, -3.75),
    (-19.523, 4.63, -3.75),
    (-17.837, 12.932, -3.75),
    (-14.726, 16.388, -3.75),
    (-13.771, 14.593, -3.75),
    (-15.952, 12.171, -3.75),
    (-11.035, 19.069, -3.75),
    (-6.787, 20.96, -3.75),
    (-6.645, 18.933, -3.75),
    (-9.623, 17.607, -3.75),
    (-2.325, 21.909, -3.75),
    (2.325, 21.909, -3.75),
    (1.63, 19.999, -3.75),
    (-1.63, 19.999, -3.75),
]))
fillet.Radius = 0.51

# Sketch on XY plane
sketch8 = doc.addObject("Sketcher::SketchObject", "Sketch007")
body.addObject(sketch8)
sketch8.AttachmentSupport = (doc.XY_Plane, [""])
sketch8.MapMode = "FlatFace"
sketch8.AttachmentOffset = App.Placement(App.Vector(0, 0, -17.25), App.Rotation())
sketch8.addGeometry(Part.Circle(App.Vector(0, 0, 0), App.Vector(0, 0, 1), 27), False)
sketch8.addGeometry(Part.Circle(App.Vector(0, 0, 0), App.Vector(0, 0, 1), 5), False)
sketch8.addConstraint(Sketcher.Constraint("Coincident", 0, 3, -1, 1))
sketch8.addConstraint(Sketcher.Constraint("Coincident", 1, 3, -1, 1))
sketch8.addConstraint(Sketcher.Constraint("Diameter", 1, 10.0))
sketch8.addConstraint(Sketcher.Constraint("Diameter", 0, 54.063296))
pad4 = doc.addObject("PartDesign::Pad", "Pad003")
body.addObject(pad4)
pad4.Profile = sketch8
pad4.Length = 2.5

# Sketch on XY plane
sketch9 = doc.addObject("Sketcher::SketchObject", "Sketch008")
body.addObject(sketch9)
sketch9.AttachmentSupport = (doc.XY_Plane, [""])
sketch9.MapMode = "FlatFace"
sketch9.AttachmentOffset = App.Placement(App.Vector(0, 0, 4.75), App.Rotation())
sketch9.addGeometry(Part.Circle(App.Vector(0, 0, 0), App.Vector(0, 0, 1), 27), False)
sketch9.addGeometry(Part.Circle(App.Vector(0, 0, 0), App.Vector(0, 0, 1), 19), False)
sketch9.addConstraint(Sketcher.Constraint("Coincident", 0, 3, -1, 1))
sketch9.addConstraint(Sketcher.Constraint("Coincident", 1, 3, -1, 1))
sketch9.addConstraint(Sketcher.Constraint("Diameter", 1, 38.0))
sketch9.addConstraint(Sketcher.Constraint("Diameter", 0, 54.063296))
pad5 = doc.addObject("PartDesign::Pad", "Pad004")
body.addObject(pad5)
pad5.Profile = sketch9
pad5.Length = 2.5

# Sketch on XY plane
sketch10 = doc.addObject("Sketcher::SketchObject", "Sketch009")
body.addObject(sketch10)
sketch10.AttachmentSupport = (doc.XY_Plane, [""])
sketch10.MapMode = "FlatFace"
sketch10.AttachmentOffset = App.Placement(App.Vector(0, 0, 18), App.Rotation())
sketch10.addGeometry(Part.LineSegment(App.Vector(-2.2, 7.7, 0), App.Vector(-2.2, 5.8, 0)), False)
sketch10.addGeometry(Part.ArcOfCircle(Part.Circle(App.Vector(0, 0, 0), App.Vector(0, 0, 1), 6.2), math.radians(111), math.radians(360)), False)
sketch10.addGeometry(Part.ArcOfCircle(Part.Circle(App.Vector(0, 0, 0), App.Vector(0, 0, 1), 6.2), math.radians(0), math.radians(69)), False)
sketch10.addGeometry(Part.LineSegment(App.Vector(2.2, 5.8, 0), App.Vector(2.2, 7.7, 0)), False)
sketch10.addGeometry(Part.LineSegment(App.Vector(2.2, 7.7, 0), App.Vector(-2.2, 7.7, 0)), False)
sketch10.addConstraint(Sketcher.Constraint("Coincident", 0, 2, 1, 1))
sketch10.addConstraint(Sketcher.Constraint("Tangent", 1, 2, 2, 1))
sketch10.addConstraint(Sketcher.Constraint("Coincident", 2, 2, 3, 1))
sketch10.addConstraint(Sketcher.Constraint("Coincident", 3, 2, 4, 1))
sketch10.addConstraint(Sketcher.Constraint("Coincident", 4, 2, 0, 1))
sketch10.addConstraint(Sketcher.Constraint("Vertical", 0))
sketch10.addConstraint(Sketcher.Constraint("Vertical", 3))
sketch10.addConstraint(Sketcher.Constraint("Horizontal", 4))
sketch10.addConstraint(Sketcher.Constraint("Coincident", 1, 3, -1, 1))
sketch10.addConstraint(Sketcher.Constraint("Equal", 1, 2))
sketch10.addConstraint(Sketcher.Constraint("PointOnObject", 1, 2, -1))
sketch10.addConstraint(Sketcher.Constraint("Horizontal", 0, 2, 2, 2))
sketch10.addConstraint(Sketcher.Constraint("Radius", 1, 6.2))
sketch10.addConstraint(Sketcher.Constraint("DistanceX", 4, 2, 4, 1, 4.4))
sketch10.addConstraint(Sketcher.Constraint("DistanceY", -1, 1, 3, 2, 7.7))
pocket4 = doc.addObject("PartDesign::Pocket", "Pocket003")
body.addObject(pocket4)
pocket4.Profile = sketch10
pocket4.Type = "ThroughAll"

# Sketch on XY plane
sketch11 = doc.addObject("Sketcher::SketchObject", "Sketch010")
body.addObject(sketch11)
sketch11.AttachmentSupport = (doc.XY_Plane, [""])
sketch11.MapMode = "FlatFace"
sketch11.AttachmentOffset = App.Placement(App.Vector(0, 0, -5.25), App.Rotation())
sketch11.addGeometry(Part.Circle(App.Vector(0, 0, 0), App.Vector(0, 0, 1), 8), False)
sketch11.addGeometry(Part.Circle(App.Vector(0, 0, 0), App.Vector(0, 0, 1), 2.2), False)
sketch11.addConstraint(Sketcher.Constraint("Coincident", 0, 3, -1, 1))
sketch11.addConstraint(Sketcher.Constraint("Coincident", 1, 3, -1, 1))
sketch11.addConstraint(Sketcher.Constraint("Diameter", 1, 4.5))
sketch11.addConstraint(Sketcher.Constraint("Diameter", 0, 16.016242))
pad6 = doc.addObject("PartDesign::Pad", "Pad005")
body.addObject(pad6)
pad6.Profile = sketch11
pad6.Length = 2.5
pad6.Reversed = True

# Sketch on XY plane
sketch12 = doc.addObject("Sketcher::SketchObject", "Sketch011")
body.addObject(sketch12)
sketch12.AttachmentSupport = (doc.XY_Plane, [""])
sketch12.MapMode = "FlatFace"
sketch12.AttachmentOffset = App.Placement(App.Vector(0, 0, -5.25), App.Rotation())
sketch12.addGeometry(Part.Circle(App.Vector(0, 0, 0), App.Vector(0, 0, 1), 8), False)
sketch12.addGeometry(Part.Circle(App.Vector(0, 0, 0), App.Vector(0, 0, 1), 6), False)
sketch12.addConstraint(Sketcher.Constraint("Coincident", 0, 3, -1, 1))
sketch12.addConstraint(Sketcher.Constraint("Coincident", 1, 3, -1, 1))
sketch12.addConstraint(Sketcher.Constraint("Diameter", 1, 12.4))
sketch12.addConstraint(Sketcher.Constraint("Diameter", 0, 16.016242))
pad7 = doc.addObject("PartDesign::Pad", "Pad006")
body.addObject(pad7)
pad7.Profile = sketch12
pad7.Length = 12
pad7.Reversed = True

# Sketch on XZ plane
sketch13 = doc.addObject("Sketcher::SketchObject", "Sketch012")
body.addObject(sketch13)
sketch13.AttachmentSupport = (doc.XZ_Plane, [""])
sketch13.MapMode = "FlatFace"
sketch13.addGeometry(Part.LineSegment(App.Vector(-27, -17.2, 0), App.Vector(-27, -14.8, 0)), False)
sketch13.addGeometry(Part.LineSegment(App.Vector(-27, -14.8, 0), App.Vector(27, -14.8, 0)), False)
sketch13.addGeometry(Part.LineSegment(App.Vector(27, -14.8, 0), App.Vector(27, -17.2, 0)), False)
sketch13.addGeometry(Part.LineSegment(App.Vector(27, -17.2, 0), App.Vector(-27, -17.2, 0)), False)
sketch13.addConstraint(Sketcher.Constraint("Coincident", 0, 2, 1, 1))
sketch13.addConstraint(Sketcher.Constraint("Coincident", 1, 2, 2, 1))
sketch13.addConstraint(Sketcher.Constraint("Coincident", 2, 2, 3, 1))
sketch13.addConstraint(Sketcher.Constraint("Coincident", 3, 2, 0, 1))
sketch13.addConstraint(Sketcher.Constraint("Vertical", 0))
sketch13.addConstraint(Sketcher.Constraint("Horizontal", 1))
sketch13.addConstraint(Sketcher.Constraint("Vertical", 2))
sketch13.addConstraint(Sketcher.Constraint("Horizontal", 3))
sketch13.addConstraint(Sketcher.Constraint("DistanceY", 0, 1, 0, 2, 2.5))
sketch13.addConstraint(Sketcher.Constraint("DistanceY", 0, 2, -1, 1, 14.75))
sketch13.addConstraint(Sketcher.Constraint("DistanceX", 1, 1, 1, 2, 54.063296))
sketch13.addConstraint(Sketcher.Constraint("DistanceX", 0, 2, -1, 1, 27.031648))
pocket5 = doc.addObject("PartDesign::Pocket", "Pocket004")
body.addObject(pocket5)
pocket5.Profile = sketch13
pocket5.Type = "ThroughAll"
pocket5.Midplane = True

# Sketch on XY plane
sketch14 = doc.addObject("Sketcher::SketchObject", "Sketch013")
body.addObject(sketch14)
sketch14.AttachmentSupport = (doc.XY_Plane, [""])
sketch14.MapMode = "FlatFace"
sketch14.AttachmentOffset = App.Placement(App.Vector(0, 0, -14.75), App.Rotation())
sketch14.addGeometry(Part.Circle(App.Vector(0, -13.1, 0), App.Vector(0, 0, 1), 1.8), False)
sketch14.addGeometry(Part.Circle(App.Vector(11.3, 6.5, 0), App.Vector(0, 0, 1), 1.8), False)
sketch14.addGeometry(Part.Circle(App.Vector(-11.3, 6.5, 0), App.Vector(0, 0, 1), 1.8), False)
sketch14.addConstraint(Sketcher.Constraint("Equal", 0, 1))
sketch14.addConstraint(Sketcher.Constraint("Equal", 1, 2))
sketch14.addConstraint(Sketcher.Constraint("Symmetric", 1, 3, 2, 3, -2))
sketch14.addConstraint(Sketcher.Constraint("PointOnObject", 0, 3, -2))
sketch14.addConstraint(Sketcher.Constraint("Diameter", 0, 3.5))
sketch14.addConstraint(Sketcher.Constraint("DistanceY", 0, 3, 1, 3, 19.648969))
sketch14.addConstraint(Sketcher.Constraint("DistanceY", 0, 3, -1, 1, 13.099313))
sketch14.addConstraint(Sketcher.Constraint("DistanceX", -1, 1, 1, 3, 11.344338))
pocket6 = doc.addObject("PartDesign::Pocket", "Pocket005")
body.addObject(pocket6)
pocket6.Profile = sketch14
pocket6.Length = 6
pocket6.Reversed = True

# Sketch on XY plane
sketch15 = doc.addObject("Sketcher::SketchObject", "Sketch014")
body.addObject(sketch15)
sketch15.AttachmentSupport = (doc.XY_Plane, [""])
sketch15.MapMode = "FlatFace"
sketch15.AttachmentOffset = App.Placement(App.Vector(0, 0, -12.25), App.Rotation())
sketch15.addGeometry(Part.LineSegment(App.Vector(11.3, 3.2, 0), App.Vector(8.4, 4.9, 0)), False)
sketch15.addGeometry(Part.LineSegment(App.Vector(8.4, 4.9, 0), App.Vector(8.4, 8.2, 0)), False)
sketch15.addGeometry(Part.LineSegment(App.Vector(8.4, 8.2, 0), App.Vector(11.3, 9.9, 0)), False)
sketch15.addGeometry(Part.LineSegment(App.Vector(11.3, 9.9, 0), App.Vector(14.2, 8.2, 0)), False)
sketch15.addGeometry(Part.LineSegment(App.Vector(14.2, 8.2, 0), App.Vector(14.2, 4.9, 0)), False)
sketch15.addGeometry(Part.LineSegment(App.Vector(14.2, 4.9, 0), App.Vector(11.3, 3.2, 0)), False)
sketch15.addGeometry(Part.LineSegment(App.Vector(-2.9, -14.8, 0), App.Vector(-2.9, -11.4, 0)), False)
sketch15.addGeometry(Part.LineSegment(App.Vector(-2.9, -11.4, 0), App.Vector(0, -9.8, 0)), False)
sketch15.addGeometry(Part.LineSegment(App.Vector(0, -9.8, 0), App.Vector(2.9, -11.4, 0)), False)
sketch15.addGeometry(Part.LineSegment(App.Vector(2.9, -11.4, 0), App.Vector(2.9, -14.8, 0)), False)
sketch15.addGeometry(Part.LineSegment(App.Vector(2.9, -14.8, 0), App.Vector(0, -16.4, 0)), False)
sketch15.addGeometry(Part.LineSegment(App.Vector(0, -16.4, 0), App.Vector(-2.9, -14.8, 0)), False)
sketch15.addGeometry(Part.LineSegment(App.Vector(-11.3, 3.2, 0), App.Vector(-14.2, 4.9, 0)), False)
sketch15.addGeometry(Part.LineSegment(App.Vector(-14.2, 4.9, 0), App.Vector(-14.2, 8.2, 0)), False)
sketch15.addGeometry(Part.LineSegment(App.Vector(-14.2, 8.2, 0), App.Vector(-11.3, 9.9, 0)), False)
sketch15.addGeometry(Part.LineSegment(App.Vector(-11.3, 9.9, 0), App.Vector(-8.4, 8.2, 0)), False)
sketch15.addGeometry(Part.LineSegment(App.Vector(-8.4, 8.2, 0), App.Vector(-8.4, 4.9, 0)), False)
sketch15.addGeometry(Part.LineSegment(App.Vector(-8.4, 4.9, 0), App.Vector(-11.3, 3.2, 0)), False)
sketch15.addConstraint(Sketcher.Constraint("Coincident", 0, 2, 1, 1))
sketch15.addConstraint(Sketcher.Constraint("Coincident", 1, 2, 2, 1))
sketch15.addConstraint(Sketcher.Constraint("Coincident", 2, 2, 3, 1))
sketch15.addConstraint(Sketcher.Constraint("Coincident", 3, 2, 4, 1))
sketch15.addConstraint(Sketcher.Constraint("Coincident", 4, 2, 5, 1))
sketch15.addConstraint(Sketcher.Constraint("Coincident", 5, 2, 0, 1))
sketch15.addConstraint(Sketcher.Constraint("Coincident", 6, 2, 7, 1))
sketch15.addConstraint(Sketcher.Constraint("Coincident", 7, 2, 8, 1))
sketch15.addConstraint(Sketcher.Constraint("Coincident", 8, 2, 9, 1))
sketch15.addConstraint(Sketcher.Constraint("Coincident", 9, 2, 10, 1))
sketch15.addConstraint(Sketcher.Constraint("Coincident", 10, 2, 11, 1))
sketch15.addConstraint(Sketcher.Constraint("Coincident", 11, 2, 6, 1))
sketch15.addConstraint(Sketcher.Constraint("Coincident", 12, 2, 13, 1))
sketch15.addConstraint(Sketcher.Constraint("Coincident", 13, 2, 14, 1))
sketch15.addConstraint(Sketcher.Constraint("Coincident", 14, 2, 15, 1))
sketch15.addConstraint(Sketcher.Constraint("Coincident", 15, 2, 16, 1))
sketch15.addConstraint(Sketcher.Constraint("Coincident", 16, 2, 17, 1))
sketch15.addConstraint(Sketcher.Constraint("Coincident", 17, 2, 12, 1))
sketch15.addConstraint(Sketcher.Constraint("Vertical", 1))
sketch15.addConstraint(Sketcher.Constraint("Vertical", 4))
sketch15.addConstraint(Sketcher.Constraint("Vertical", 6))
sketch15.addConstraint(Sketcher.Constraint("Vertical", 9))
sketch15.addConstraint(Sketcher.Constraint("Vertical", 13))
sketch15.addConstraint(Sketcher.Constraint("Vertical", 16))
sketch15.addConstraint(Sketcher.Constraint("Symmetric", 6, 2, 8, 2, -2))
sketch15.addConstraint(Sketcher.Constraint("Symmetric", 4, 2, 12, 2, -2))
sketch15.addConstraint(Sketcher.Constraint("Symmetric", 2, 2, 14, 2, -2))
sketch15.addConstraint(Sketcher.Constraint("Symmetric", 1, 2, 15, 2, -2))
sketch15.addConstraint(Sketcher.Constraint("Symmetric", 5, 2, 17, 2, -2))
sketch15.addConstraint(Sketcher.Constraint("PointOnObject", 7, 2, -2))
sketch15.addConstraint(Sketcher.Constraint("PointOnObject", 10, 2, -2))
sketch15.addConstraint(Sketcher.Constraint("Parallel", 0, 3))
sketch15.addConstraint(Sketcher.Constraint("Parallel", 2, 5))
sketch15.addConstraint(Sketcher.Constraint("Parallel", 5, 7))
sketch15.addConstraint(Sketcher.Constraint("Parallel", 3, 8))
sketch15.addConstraint(Sketcher.Constraint("Parallel", 7, 10))
sketch15.addConstraint(Sketcher.Constraint("Parallel", 8, 11))
sketch15.addConstraint(Sketcher.Constraint("Parallel", 10, 14))
sketch15.addConstraint(Sketcher.Constraint("Parallel", 14, 17))
sketch15.addConstraint(Sketcher.Constraint("Horizontal", 1, 2, 3, 2))
sketch15.addConstraint(Sketcher.Constraint("Horizontal", 0, 2, 4, 2))
sketch15.addConstraint(Sketcher.Constraint("Equal", 4, 6))
sketch15.addConstraint(Sketcher.Constraint("Equal", 5, 7))
sketch15.addConstraint(Sketcher.Constraint("Angle", 0, Q("150 deg")))
sketch15.addConstraint(Sketcher.Constraint("DistanceX", 6, 2, -1, 1, 2.9))
sketch15.addConstraint(Sketcher.Constraint("DistanceY", 1, 1, 1, 2, 3.348632))
sketch15.addConstraint(Sketcher.Constraint("DistanceY", -1, 1, 0, 2, 4.875341))
sketch15.addConstraint(Sketcher.Constraint("DistanceY", 7, 2, -1, 1, 9.750681))
sketch15.addConstraint(Sketcher.Constraint("DistanceX", -1, 1, 0, 2, 8.444338))
pocket7 = doc.addObject("PartDesign::Pocket", "Pocket006")
body.addObject(pocket7)
pocket7.Profile = sketch15
pocket7.Length = 3
pocket7.Reversed = True

# Sketch on XY plane
sketch16 = doc.addObject("Sketcher::SketchObject", "Sketch015")
body.addObject(sketch16)
sketch16.AttachmentSupport = (doc.XY_Plane, [""])
sketch16.MapMode = "FlatFace"
sketch16.AttachmentOffset = App.Placement(App.Vector(0, 0, -9.25), App.Rotation())
sketch16.addGeometry(Part.Circle(App.Vector(0, -13.1, 0), App.Vector(0, 0, 1), 1.8), False)
sketch16.addGeometry(Part.Circle(App.Vector(11.3, 6.5, 0), App.Vector(0, 0, 1), 1.8), False)
sketch16.addGeometry(Part.Circle(App.Vector(-11.3, 6.5, 0), App.Vector(0, 0, 1), 1.8), False)
sketch16.addConstraint(Sketcher.Constraint("Equal", 0, 1))
sketch16.addConstraint(Sketcher.Constraint("Equal", 1, 2))
sketch16.addConstraint(Sketcher.Constraint("Symmetric", 1, 3, 2, 3, -2))
sketch16.addConstraint(Sketcher.Constraint("PointOnObject", 0, 3, -2))
sketch16.addConstraint(Sketcher.Constraint("Diameter", 0, 3.5))
sketch16.addConstraint(Sketcher.Constraint("DistanceY", 0, 3, 1, 3, 19.648969))
sketch16.addConstraint(Sketcher.Constraint("DistanceY", 0, 3, -1, 1, 13.099313))
sketch16.addConstraint(Sketcher.Constraint("DistanceX", -1, 1, 1, 3, 11.344338))
pad8 = doc.addObject("PartDesign::Pad", "Pad007")
body.addObject(pad8)
pad8.Profile = sketch16
pad8.Length = 0.2

doc.recompute()
